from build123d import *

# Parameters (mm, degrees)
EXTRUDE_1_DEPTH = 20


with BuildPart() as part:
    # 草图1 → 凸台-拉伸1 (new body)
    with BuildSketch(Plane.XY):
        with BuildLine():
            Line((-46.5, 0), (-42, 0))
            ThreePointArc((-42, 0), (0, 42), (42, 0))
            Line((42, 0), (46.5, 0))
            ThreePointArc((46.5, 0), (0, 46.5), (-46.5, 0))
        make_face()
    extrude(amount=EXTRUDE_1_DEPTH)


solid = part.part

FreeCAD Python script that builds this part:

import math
import FreeCAD as App
import Part
import Sketcher

doc = App.newDocument("Part")
body = doc.addObject("PartDesign::Body", "Body")

sketch1 = body.newObject("Sketcher::SketchObject", "Sketch")
sketch1.AttachmentSupport = (doc.getObject("XY_Plane"), [""])
sketch1.MapMode = "FlatFace"
sketch1.addGeometry([
    Part.LineSegment(App.Vector(-46.5, 0, 0), App.Vector(-42, 0, 0)),
    Part.ArcOfCircle(Part.Circle(App.Vector(0, 0, 0), App.Vector(0, 0, 1), 42), math.radians(0), math.radians(180)),
    Part.LineSegment(App.Vector(42, 0, 0), App.Vector(46.5, 0, 0)),
    Part.ArcOfCircle(Part.Circle(App.Vector(0, 0, 0), App.Vector(0, 0, 1), 46.5), math.radians(0), math.radians(180)),
], False)
sketch1.addConstraint([
    Sketcher.Constraint("Coincident", 0, 2, 1, 2),
    Sketcher.Constraint("Coincident", 1, 1, 2, 1),
    Sketcher.Constraint("Coincident", 2, 2, 3, 1),
    Sketcher.Constraint("Coincident", 3, 2, 0, 1),
    Sketcher.Constraint("Horizontal", 0),
    Sketcher.Constraint("Horizontal", 2),
    Sketcher.Constraint("Coincident", 1, 3, -1, 1),
    Sketcher.Constraint("Coincident", 3, 3, -1, 1),
    Sketcher.Constraint("PointOnObject", 0, 2, -1),
    Sketcher.Constraint("PointOnObject", 1, 1, -1),
    Sketcher.Constraint("Radius", 1, 42.0),
    Sketcher.Constraint("Radius", 3, 46.5),
])
pad1 = body.newObject("PartDesign::Pad", "Pad")
pad1.Profile = sketch1
pad1.Length = 20

doc.recompute()
